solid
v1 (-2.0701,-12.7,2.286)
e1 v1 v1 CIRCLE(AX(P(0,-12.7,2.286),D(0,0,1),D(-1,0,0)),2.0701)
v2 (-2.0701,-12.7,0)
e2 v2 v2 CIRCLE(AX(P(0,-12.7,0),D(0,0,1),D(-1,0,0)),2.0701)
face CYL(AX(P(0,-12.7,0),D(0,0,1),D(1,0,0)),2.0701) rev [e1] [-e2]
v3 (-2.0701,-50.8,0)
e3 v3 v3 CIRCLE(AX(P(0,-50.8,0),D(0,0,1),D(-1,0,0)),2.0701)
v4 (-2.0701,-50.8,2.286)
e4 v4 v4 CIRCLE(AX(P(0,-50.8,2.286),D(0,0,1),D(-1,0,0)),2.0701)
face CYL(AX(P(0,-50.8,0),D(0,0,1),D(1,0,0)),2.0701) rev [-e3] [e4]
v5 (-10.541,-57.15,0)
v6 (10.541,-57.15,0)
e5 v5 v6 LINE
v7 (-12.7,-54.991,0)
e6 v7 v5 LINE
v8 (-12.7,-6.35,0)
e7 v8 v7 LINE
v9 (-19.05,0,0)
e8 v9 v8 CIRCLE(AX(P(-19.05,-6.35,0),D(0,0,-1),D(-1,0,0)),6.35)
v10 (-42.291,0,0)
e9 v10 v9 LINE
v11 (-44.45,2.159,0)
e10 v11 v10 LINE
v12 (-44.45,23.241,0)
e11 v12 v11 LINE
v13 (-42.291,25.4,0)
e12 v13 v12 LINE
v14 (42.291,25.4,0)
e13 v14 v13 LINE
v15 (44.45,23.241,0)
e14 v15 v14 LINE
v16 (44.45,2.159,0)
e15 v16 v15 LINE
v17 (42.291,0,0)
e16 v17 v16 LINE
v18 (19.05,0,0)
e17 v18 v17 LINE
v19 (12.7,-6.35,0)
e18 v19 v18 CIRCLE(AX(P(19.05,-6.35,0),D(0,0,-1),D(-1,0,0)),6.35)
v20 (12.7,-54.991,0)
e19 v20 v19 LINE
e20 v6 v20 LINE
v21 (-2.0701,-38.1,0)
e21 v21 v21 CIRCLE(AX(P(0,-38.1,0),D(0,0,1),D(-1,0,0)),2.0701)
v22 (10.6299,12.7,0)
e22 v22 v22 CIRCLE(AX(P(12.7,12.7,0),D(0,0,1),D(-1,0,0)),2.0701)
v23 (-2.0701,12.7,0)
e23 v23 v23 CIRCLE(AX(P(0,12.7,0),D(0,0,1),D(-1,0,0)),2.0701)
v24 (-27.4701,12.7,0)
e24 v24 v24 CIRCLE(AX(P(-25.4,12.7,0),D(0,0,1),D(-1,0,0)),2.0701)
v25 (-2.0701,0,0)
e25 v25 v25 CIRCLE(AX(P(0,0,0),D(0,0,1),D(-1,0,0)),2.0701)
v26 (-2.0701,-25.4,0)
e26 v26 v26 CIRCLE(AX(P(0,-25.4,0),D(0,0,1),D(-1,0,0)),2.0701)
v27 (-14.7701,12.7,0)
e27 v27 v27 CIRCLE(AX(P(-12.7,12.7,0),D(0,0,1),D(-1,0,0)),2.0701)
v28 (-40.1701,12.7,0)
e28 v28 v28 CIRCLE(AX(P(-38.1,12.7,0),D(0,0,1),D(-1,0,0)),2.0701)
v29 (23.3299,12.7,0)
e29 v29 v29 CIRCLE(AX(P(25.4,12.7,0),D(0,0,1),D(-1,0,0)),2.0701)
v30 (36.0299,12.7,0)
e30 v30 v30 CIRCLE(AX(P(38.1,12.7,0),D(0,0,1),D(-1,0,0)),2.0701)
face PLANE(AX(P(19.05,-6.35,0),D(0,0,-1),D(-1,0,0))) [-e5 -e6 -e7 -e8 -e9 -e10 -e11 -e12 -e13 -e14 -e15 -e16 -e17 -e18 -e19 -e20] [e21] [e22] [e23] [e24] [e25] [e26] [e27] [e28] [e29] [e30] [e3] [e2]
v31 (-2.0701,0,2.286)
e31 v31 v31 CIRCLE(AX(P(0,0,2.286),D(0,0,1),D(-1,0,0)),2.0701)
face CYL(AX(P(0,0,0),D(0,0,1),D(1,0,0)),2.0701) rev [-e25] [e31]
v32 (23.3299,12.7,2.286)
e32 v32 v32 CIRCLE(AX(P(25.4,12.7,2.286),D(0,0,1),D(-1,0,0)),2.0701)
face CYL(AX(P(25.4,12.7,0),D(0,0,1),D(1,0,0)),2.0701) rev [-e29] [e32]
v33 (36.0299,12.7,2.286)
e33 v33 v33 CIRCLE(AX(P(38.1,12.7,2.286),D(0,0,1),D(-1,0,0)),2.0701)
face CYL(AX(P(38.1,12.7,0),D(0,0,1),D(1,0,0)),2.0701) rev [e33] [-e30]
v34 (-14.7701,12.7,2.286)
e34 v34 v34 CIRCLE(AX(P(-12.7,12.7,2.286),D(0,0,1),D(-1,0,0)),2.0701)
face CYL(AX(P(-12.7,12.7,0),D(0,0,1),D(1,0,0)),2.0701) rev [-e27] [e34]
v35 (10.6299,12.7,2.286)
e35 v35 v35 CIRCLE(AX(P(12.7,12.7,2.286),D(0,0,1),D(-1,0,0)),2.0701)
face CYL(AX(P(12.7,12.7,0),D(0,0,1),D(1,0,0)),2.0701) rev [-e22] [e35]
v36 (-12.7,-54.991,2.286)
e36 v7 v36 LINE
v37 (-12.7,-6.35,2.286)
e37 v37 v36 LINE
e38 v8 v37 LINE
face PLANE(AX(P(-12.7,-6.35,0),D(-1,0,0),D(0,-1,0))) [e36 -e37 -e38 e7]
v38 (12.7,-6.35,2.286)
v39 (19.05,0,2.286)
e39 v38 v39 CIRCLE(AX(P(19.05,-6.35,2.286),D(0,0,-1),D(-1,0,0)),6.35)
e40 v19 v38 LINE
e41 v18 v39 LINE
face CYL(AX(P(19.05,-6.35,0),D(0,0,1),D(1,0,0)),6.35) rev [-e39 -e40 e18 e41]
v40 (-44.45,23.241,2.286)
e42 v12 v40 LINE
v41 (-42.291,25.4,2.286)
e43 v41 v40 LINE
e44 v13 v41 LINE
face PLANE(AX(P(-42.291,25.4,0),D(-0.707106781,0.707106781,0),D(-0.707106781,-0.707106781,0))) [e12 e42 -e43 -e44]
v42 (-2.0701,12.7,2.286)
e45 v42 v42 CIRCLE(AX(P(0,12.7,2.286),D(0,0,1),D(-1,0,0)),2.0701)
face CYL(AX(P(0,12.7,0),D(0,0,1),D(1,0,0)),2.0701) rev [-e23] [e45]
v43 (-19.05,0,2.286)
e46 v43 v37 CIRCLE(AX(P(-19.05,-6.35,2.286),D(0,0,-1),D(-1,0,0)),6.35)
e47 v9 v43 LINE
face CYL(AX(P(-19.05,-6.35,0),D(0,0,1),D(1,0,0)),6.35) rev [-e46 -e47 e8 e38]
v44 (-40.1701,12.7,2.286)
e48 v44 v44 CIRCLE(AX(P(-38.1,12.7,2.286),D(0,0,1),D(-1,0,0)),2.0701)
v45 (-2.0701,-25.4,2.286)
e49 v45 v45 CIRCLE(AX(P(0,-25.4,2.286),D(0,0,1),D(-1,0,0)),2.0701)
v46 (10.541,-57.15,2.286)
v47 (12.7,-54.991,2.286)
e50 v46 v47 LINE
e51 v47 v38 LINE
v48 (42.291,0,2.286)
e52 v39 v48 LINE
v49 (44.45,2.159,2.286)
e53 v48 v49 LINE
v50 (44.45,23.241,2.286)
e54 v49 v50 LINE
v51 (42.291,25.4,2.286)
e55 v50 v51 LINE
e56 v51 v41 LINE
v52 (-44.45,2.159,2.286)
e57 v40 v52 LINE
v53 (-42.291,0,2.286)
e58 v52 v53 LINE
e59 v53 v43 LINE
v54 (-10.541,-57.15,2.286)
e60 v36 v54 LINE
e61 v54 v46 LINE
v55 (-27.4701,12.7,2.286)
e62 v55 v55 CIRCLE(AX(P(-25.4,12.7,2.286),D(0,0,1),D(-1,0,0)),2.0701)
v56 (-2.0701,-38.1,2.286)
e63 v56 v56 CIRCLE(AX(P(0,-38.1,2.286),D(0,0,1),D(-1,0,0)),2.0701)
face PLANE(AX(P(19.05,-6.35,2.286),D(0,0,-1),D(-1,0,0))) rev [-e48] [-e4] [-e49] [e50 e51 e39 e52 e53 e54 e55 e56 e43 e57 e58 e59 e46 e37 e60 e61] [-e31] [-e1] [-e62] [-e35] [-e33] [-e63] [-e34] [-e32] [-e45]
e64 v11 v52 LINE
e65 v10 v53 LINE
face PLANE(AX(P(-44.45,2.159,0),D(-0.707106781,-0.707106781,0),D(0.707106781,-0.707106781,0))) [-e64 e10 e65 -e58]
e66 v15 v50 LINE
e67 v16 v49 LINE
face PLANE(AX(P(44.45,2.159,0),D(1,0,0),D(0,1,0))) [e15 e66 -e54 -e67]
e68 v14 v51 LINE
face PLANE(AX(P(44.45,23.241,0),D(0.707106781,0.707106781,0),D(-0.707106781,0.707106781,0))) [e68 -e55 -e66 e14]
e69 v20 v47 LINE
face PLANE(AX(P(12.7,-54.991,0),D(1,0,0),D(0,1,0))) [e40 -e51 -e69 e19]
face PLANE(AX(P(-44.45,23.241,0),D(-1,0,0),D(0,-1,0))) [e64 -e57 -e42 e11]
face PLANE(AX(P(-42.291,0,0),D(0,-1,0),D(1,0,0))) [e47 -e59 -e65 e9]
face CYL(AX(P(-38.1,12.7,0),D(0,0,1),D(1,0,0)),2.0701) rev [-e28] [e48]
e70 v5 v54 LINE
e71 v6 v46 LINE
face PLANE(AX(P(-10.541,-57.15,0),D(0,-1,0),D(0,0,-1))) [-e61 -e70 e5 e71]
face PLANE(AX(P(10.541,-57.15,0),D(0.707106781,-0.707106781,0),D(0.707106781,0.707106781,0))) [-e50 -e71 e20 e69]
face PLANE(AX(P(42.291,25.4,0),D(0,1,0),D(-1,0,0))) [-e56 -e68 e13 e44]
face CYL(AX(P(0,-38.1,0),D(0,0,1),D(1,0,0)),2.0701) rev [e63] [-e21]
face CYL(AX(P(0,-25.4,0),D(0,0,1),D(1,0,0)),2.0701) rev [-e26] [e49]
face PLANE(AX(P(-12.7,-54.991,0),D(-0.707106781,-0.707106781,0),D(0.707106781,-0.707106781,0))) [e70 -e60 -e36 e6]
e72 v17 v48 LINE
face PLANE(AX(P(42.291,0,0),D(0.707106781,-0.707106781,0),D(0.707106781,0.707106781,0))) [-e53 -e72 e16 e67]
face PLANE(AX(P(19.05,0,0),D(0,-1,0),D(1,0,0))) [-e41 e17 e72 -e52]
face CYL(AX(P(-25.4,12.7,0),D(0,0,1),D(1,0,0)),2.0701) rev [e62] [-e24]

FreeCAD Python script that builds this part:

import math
import FreeCAD as App
import Part
import Sketcher
Q = App.Units.Quantity

doc = App.newDocument("Part")
params = doc.addObject("Spreadsheet::Sheet", "Params")
for row, (alias, value) in enumerate([
    ("sketch1_radius", "0.25 in"),
    ("sketch1_diameter", "0.163 in"),
    ("sketch1_width", "3.33 in"),
    ("sketch1_height", "1.915 in"),
    ("pad1_length", "0.09 in"),
], start=1):
    params.set(f"A{row}", alias)
    params.set(f"B{row}", "=" + value)
    params.setAlias(f"B{row}", alias)

body = doc.addObject("PartDesign::Body", "Body")

sketch1 = body.newObject("Sketcher::SketchObject", "Sketch")
sketch1.AttachmentSupport = (doc.getObject("XY_Plane"), [""])
sketch1.MapMode = "FlatFace"
sketch1.AttachmentOffset = App.Placement(App.Vector(0, 0, 0.09 * 25.4), App.Rotation())
sketch1.addGeometry([
    Part.LineSegment(App.Vector(12.7, -55, 0), App.Vector(12.7, -6.3, 0)),
    Part.ArcOfCircle(Part.Circle(App.Vector(19, -6.3, 0), App.Vector(0, 0, 1), 6.3), math.radians(90), math.radians(180)),
    Part.LineSegment(App.Vector(19.1, 0, 0), App.Vector(42.3, 0, 0)),
    Part.LineSegment(App.Vector(42.3, 0, 0), App.Vector(44.5, 2.2, 0)),
    Part.LineSegment(App.Vector(44.5, 2.2, 0), App.Vector(44.5, 23.2, 0)),
    Part.LineSegment(App.Vector(44.5, 23.2, 0), App.Vector(42.3, 25.4, 0)),
    Part.LineSegment(App.Vector(42.3, 25.4, 0), App.Vector(-42.3, 25.4, 0)),
    Part.LineSegment(App.Vector(-42.3, 25.4, 0), App.Vector(-44.5, 23.2, 0)),
    Part.LineSegment(App.Vector(-44.5, 23.2, 0), App.Vector(-44.5, 2.2, 0)),
    Part.LineSegment(App.Vector(-44.5, 2.2, 0), App.Vector(-42.3, 0, 0)),
    Part.LineSegment(App.Vector(-42.3, 0, 0), App.Vector(-19.1, 0, 0)),
    Part.ArcOfCircle(Part.Circle(App.Vector(-19, -6.3, 0), App.Vector(0, 0, 1), 6.3), math.radians(0), math.radians(90)),
    Part.LineSegment(App.Vector(-12.7, -6.3, 0), App.Vector(-12.7, -55, 0)),
    Part.LineSegment(App.Vector(-12.7, -55, 0), App.Vector(-10.5, -57.1, 0)),
    Part.LineSegment(App.Vector(-10.5, -57.1, 0), App.Vector(10.5, -57.1, 0)),
    Part.LineSegment(App.Vector(10.5, -57.1, 0), App.Vector(12.7, -55, 0)),
    Part.Circle(App.Vector(0, -50.8, 0), App.Vector(0, 0, 1), 2.1),
    Part.Circle(App.Vector(0, -38.1, 0), App.Vector(0, 0, 1), 2.1),
    Part.Circle(App.Vector(0, -25.4, 0), App.Vector(0, 0, 1), 2.1),
    Part.Circle(App.Vector(-38.1, 12.7, 0), App.Vector(0, 0, 1), 2.1),
    Part.Circle(App.Vector(-25.4, 12.7, 0), App.Vector(0, 0, 1), 2.1),
    Part.Circle(App.Vector(-12.7, 12.7, 0), App.Vector(0, 0, 1), 2.1),
    Part.Circle(App.Vector(0, -12.7, 0), App.Vector(0, 0, 1), 2.1),
    Part.Circle(App.Vector(0, 0, 0), App.Vector(0, 0, 1), 2.1),
    Part.Circle(App.Vector(0, 12.7, 0), App.Vector(0, 0, 1), 2.1),
    Part.Circle(App.Vector(12.7, 12.7, 0), App.Vector(0, 0, 1), 2.1),
    Part.Circle(App.Vector(25.4, 12.7, 0), App.Vector(0, 0, 1), 2.1),
    Part.Circle(App.Vector(38.1, 12.7, 0), App.Vector(0, 0, 1), 2.1),
], False)
sketch1.addConstraint([
    Sketcher.Constraint("Tangent", 0, 2, 1, 2),
    Sketcher.Constraint("Tangent", 1, 1, 2, 1),
    Sketcher.Constraint("Coincident", 2, 2, 3, 1),
    Sketcher.Constraint("Coincident", 3, 2, 4, 1),
    Sketcher.Constraint("Coincident", 4, 2, 5, 1),
    Sketcher.Constraint("Coincident", 5, 2, 6, 1),
    Sketcher.Constraint("Coincident", 6, 2, 7, 1),
    Sketcher.Constraint("Coincident", 7, 2, 8, 1),
    Sketcher.Constraint("Coincident", 8, 2, 9, 1),
    Sketcher.Constraint("Coincident", 9, 2, 10, 1),
    Sketcher.Constraint("Tangent", 10, 2, 11, 2),
    Sketcher.Constraint("Tangent", 11, 1, 12, 1),
    Sketcher.Constraint("Coincident", 12, 2, 13, 1),
    Sketcher.Constraint("Coincident", 13, 2, 14, 1),
    Sketcher.Constraint("Coincident", 14, 2, 15, 1),
    Sketcher.Constraint("Coincident", 15, 2, 0, 1),
    Sketcher.Constraint("Vertical", 0),
    Sketcher.Constraint("Horizontal", 2),
    Sketcher.Constraint("Vertical", 4),
    Sketcher.Constraint("Horizontal", 6),
    Sketcher.Constraint("Vertical", 8),
    Sketcher.Constraint("Horizontal", 10),
    Sketcher.Constraint("Vertical", 12),
    Sketcher.Constraint("Horizontal", 14),
    Sketcher.Constraint("Coincident", 23, 3, -1, 1),
    Sketcher.Constraint("Equal", 1, 11),
    Sketcher.Constraint("Equal", 16, 17),
    Sketcher.Constraint("Equal", 17, 18),
    Sketcher.Constraint("Equal", 18, 19),
    Sketcher.Constraint("Equal", 19, 20),
    Sketcher.Constraint("Equal", 20, 21),
    Sketcher.Constraint("Equal", 21, 22),
    Sketcher.Constraint("Equal", 22, 23),
    Sketcher.Constraint("Equal", 23, 24),
    Sketcher.Constraint("Equal", 24, 25),
    Sketcher.Constraint("Equal", 25, 26),
    Sketcher.Constraint("Equal", 26, 27),
    Sketcher.Constraint("Symmetric", 22, 3, 24, 3, -1, 1),
    Sketcher.Constraint("Symmetric", 2, 2, 9, 2, -1, 1),
    Sketcher.Constraint("Symmetric", 1, 3, 11, 3, -2),
    Sketcher.Constraint("Symmetric", 21, 3, 25, 3, -2),
    Sketcher.Constraint("Symmetric", 20, 3, 26, 3, -2),
    Sketcher.Constraint("Symmetric", 19, 3, 27, 3, -2),
    Sketcher.Constraint("Symmetric", 4, 2, 7, 2, -2),
    Sketcher.Constraint("PointOnObject", 16, 3, -2),
    Sketcher.Constraint("PointOnObject", 17, 3, -2),
    Sketcher.Constraint("PointOnObject", 18, 3, -2),
    Sketcher.Constraint("PointOnObject", 22, 3, -2),
    Sketcher.Constraint("Perpendicular", 3, 5),
    Sketcher.Constraint("Perpendicular", 5, 7),
    Sketcher.Constraint("Perpendicular", 7, 9),
    Sketcher.Constraint("Parallel", 9, 13),
    Sketcher.Constraint("Perpendicular", 13, 15),
    Sketcher.Constraint("Horizontal", 19, 3, 20, 3),
    Sketcher.Constraint("Horizontal", 20, 3, 21, 3),
    Sketcher.Constraint("Horizontal", 21, 3, 24, 3),
    Sketcher.Constraint("Horizontal", 3, 2, 8, 2),
    Sketcher.Constraint("Horizontal", 12, 2, 15, 2),
    Sketcher.Constraint("Vertical", 25, 3, 0, 2),
    Sketcher.Constraint("Vertical", 2, 2, 5, 2),
    Sketcher.Constraint("Equal", 14, 4),
    Sketcher.Constraint("Equal", 9, 13),
    Sketcher.Constraint("Radius", 1, Q("0.25 in")),
    Sketcher.Constraint("Diameter", 16, Q("0.163 in")),
    Sketcher.Constraint("DistanceY", 16, 3, -1, 1, Q("2 in")),
    Sketcher.Constraint("DistanceY", 18, 3, -1, 1, Q("1 in")),
    Sketcher.Constraint("DistanceX", 20, 3, -1, 1, Q("1 in")),
    Sketcher.Constraint("DistanceY", -1, 1, 5, 2, Q("1 in")),
    Sketcher.Constraint("DistanceY", 17, 3, 19, 3, Q("2 in")),
    Sketcher.Constraint("DistanceX", 19, 3, 21, 3, Q("1 in")),
    Sketcher.Constraint("DistanceY", 17, 3, 22, 3, Q("1 in")),
    Sketcher.Constraint("DistanceX", 1, 1, 3, 2, Q("1 in")),
    Sketcher.Constraint("DistanceX", 6, 2, 6, 1, Q("3.33 in")),
    Sketcher.Constraint("DistanceY", 0, 1, 0, 2, Q("1.915 in")),
])
sketch1.setExpression("Constraints[62]", "Params.sketch1_radius")
sketch1.setExpression("Constraints[63]", "Params.sketch1_diameter")
sketch1.setExpression("Constraints[72]", "Params.sketch1_width")
sketch1.setExpression("Constraints[73]", "Params.sketch1_height")
pad1 = body.newObject("PartDesign::Pad", "Pad")
pad1.Profile = sketch1
pad1.setExpression("Length", "Params.pad1_length")
pad1.Reversed = True

doc.recompute()
